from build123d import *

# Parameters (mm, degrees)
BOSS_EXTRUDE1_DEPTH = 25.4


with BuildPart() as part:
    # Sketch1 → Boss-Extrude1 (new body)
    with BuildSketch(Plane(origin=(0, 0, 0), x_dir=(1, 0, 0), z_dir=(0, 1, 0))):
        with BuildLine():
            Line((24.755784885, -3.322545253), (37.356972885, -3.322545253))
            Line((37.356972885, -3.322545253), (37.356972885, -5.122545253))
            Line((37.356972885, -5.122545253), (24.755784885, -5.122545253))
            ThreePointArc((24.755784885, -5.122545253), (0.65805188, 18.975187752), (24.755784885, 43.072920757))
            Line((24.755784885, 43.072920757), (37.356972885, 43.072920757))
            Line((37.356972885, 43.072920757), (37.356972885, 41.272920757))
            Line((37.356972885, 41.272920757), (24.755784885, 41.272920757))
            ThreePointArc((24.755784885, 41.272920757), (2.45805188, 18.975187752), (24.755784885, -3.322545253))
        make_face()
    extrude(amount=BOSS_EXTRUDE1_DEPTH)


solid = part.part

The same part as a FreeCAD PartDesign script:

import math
import FreeCAD as App
import Part
import Sketcher

V = App.Vector
Q = App.Units.Quantity

doc = App.newDocument("Part")
body = doc.addObject("PartDesign::Body", "Body")

sketch1 = body.newObject("Sketcher::SketchObject", "Sketch")
sketch1.AttachmentSupport = (doc.getObject("XZ_Plane"), [""])
sketch1.MapMode = "FlatFace"
sketch1.addGeometry(Part.LineSegment(V(37.356973, 3.322545, 0), V(24.755785, 3.322545, 0)), False)
sketch1.addGeometry(Part.ArcOfCircle(Part.Circle(V(24.755785, -18.975188, 0), V(0, 0, 1), 22.297733), math.radians(90), math.radians(270)), False)
sketch1.addGeometry(Part.LineSegment(V(24.755785, -41.272921, 0), V(37.356973, -41.272921, 0)), False)
sketch1.addGeometry(Part.LineSegment(V(37.356973, -41.272921, 0), V(37.356973, -43.072921, 0)), False)
sketch1.addGeometry(Part.LineSegment(V(37.356973, -43.072921, 0), V(24.755785, -43.072921, 0)), False)
sketch1.addGeometry(Part.ArcOfCircle(Part.Circle(V(24.755785, -18.975188, 0), V(0, 0, 1), 24.097733), math.radians(90), math.radians(270)), False)
sketch1.addGeometry(Part.LineSegment(V(24.755785, 5.122545, 0), V(37.356973, 5.122545, 0)), False)
sketch1.addGeometry(Part.LineSegment(V(37.356973, 5.122545, 0), V(37.356973, 3.322545, 0)), False)
sketch1.addConstraint(Sketcher.Constraint("Tangent", 0, 2, 1, 1))
sketch1.addConstraint(Sketcher.Constraint("Tangent", 1, 2, 2, 1))
sketch1.addConstraint(Sketcher.Constraint("Coincident", 2, 2, 3, 1))
sketch1.addConstraint(Sketcher.Constraint("Coincident", 3, 2, 4, 1))
sketch1.addConstraint(Sketcher.Constraint("Tangent", 4, 2, 5, 2))
sketch1.addConstraint(Sketcher.Constraint("Tangent", 5, 1, 6, 1))
sketch1.addConstraint(Sketcher.Constraint("Coincident", 6, 2, 7, 1))
sketch1.addConstraint(Sketcher.Constraint("Coincident", 7, 2, 0, 1))
sketch1.addConstraint(Sketcher.Constraint("Horizontal", 0))
sketch1.addConstraint(Sketcher.Constraint("Horizontal", 2))
sketch1.addConstraint(Sketcher.Constraint("Vertical", 3))
sketch1.addConstraint(Sketcher.Constraint("Horizontal", 4))
sketch1.addConstraint(Sketcher.Constraint("Horizontal", 6))
sketch1.addConstraint(Sketcher.Constraint("Vertical", 7))
sketch1.addConstraint(Sketcher.Constraint("Coincident", 5, 3, 1, 3))
sketch1.addConstraint(Sketcher.Constraint("Vertical", 3, 2, 6, 2))
sketch1.addConstraint(Sketcher.Constraint("DistanceY", 3, 2, 3, 1, Q("1.8 mm")))
sketch1.addConstraint(Sketcher.Constraint("Radius", 1, Q("22.297733 mm")))
sketch1.addConstraint(Sketcher.Constraint("DistanceX", 0, 2, 0, 1, Q("12.601188 mm")))
sketch1.addConstraint(Sketcher.Constraint("DistanceY", 1, 2, -1, 1, Q("41.272921 mm")))
sketch1.addConstraint(Sketcher.Constraint("DistanceX", -1, 1, 1, 3, Q("24.755785 mm")))
pad1 = body.newObject("PartDesign::Pad", "Pad")
pad1.Profile = sketch1
pad1.Length = 25.4
pad1.Reversed = True

doc.recompute()
